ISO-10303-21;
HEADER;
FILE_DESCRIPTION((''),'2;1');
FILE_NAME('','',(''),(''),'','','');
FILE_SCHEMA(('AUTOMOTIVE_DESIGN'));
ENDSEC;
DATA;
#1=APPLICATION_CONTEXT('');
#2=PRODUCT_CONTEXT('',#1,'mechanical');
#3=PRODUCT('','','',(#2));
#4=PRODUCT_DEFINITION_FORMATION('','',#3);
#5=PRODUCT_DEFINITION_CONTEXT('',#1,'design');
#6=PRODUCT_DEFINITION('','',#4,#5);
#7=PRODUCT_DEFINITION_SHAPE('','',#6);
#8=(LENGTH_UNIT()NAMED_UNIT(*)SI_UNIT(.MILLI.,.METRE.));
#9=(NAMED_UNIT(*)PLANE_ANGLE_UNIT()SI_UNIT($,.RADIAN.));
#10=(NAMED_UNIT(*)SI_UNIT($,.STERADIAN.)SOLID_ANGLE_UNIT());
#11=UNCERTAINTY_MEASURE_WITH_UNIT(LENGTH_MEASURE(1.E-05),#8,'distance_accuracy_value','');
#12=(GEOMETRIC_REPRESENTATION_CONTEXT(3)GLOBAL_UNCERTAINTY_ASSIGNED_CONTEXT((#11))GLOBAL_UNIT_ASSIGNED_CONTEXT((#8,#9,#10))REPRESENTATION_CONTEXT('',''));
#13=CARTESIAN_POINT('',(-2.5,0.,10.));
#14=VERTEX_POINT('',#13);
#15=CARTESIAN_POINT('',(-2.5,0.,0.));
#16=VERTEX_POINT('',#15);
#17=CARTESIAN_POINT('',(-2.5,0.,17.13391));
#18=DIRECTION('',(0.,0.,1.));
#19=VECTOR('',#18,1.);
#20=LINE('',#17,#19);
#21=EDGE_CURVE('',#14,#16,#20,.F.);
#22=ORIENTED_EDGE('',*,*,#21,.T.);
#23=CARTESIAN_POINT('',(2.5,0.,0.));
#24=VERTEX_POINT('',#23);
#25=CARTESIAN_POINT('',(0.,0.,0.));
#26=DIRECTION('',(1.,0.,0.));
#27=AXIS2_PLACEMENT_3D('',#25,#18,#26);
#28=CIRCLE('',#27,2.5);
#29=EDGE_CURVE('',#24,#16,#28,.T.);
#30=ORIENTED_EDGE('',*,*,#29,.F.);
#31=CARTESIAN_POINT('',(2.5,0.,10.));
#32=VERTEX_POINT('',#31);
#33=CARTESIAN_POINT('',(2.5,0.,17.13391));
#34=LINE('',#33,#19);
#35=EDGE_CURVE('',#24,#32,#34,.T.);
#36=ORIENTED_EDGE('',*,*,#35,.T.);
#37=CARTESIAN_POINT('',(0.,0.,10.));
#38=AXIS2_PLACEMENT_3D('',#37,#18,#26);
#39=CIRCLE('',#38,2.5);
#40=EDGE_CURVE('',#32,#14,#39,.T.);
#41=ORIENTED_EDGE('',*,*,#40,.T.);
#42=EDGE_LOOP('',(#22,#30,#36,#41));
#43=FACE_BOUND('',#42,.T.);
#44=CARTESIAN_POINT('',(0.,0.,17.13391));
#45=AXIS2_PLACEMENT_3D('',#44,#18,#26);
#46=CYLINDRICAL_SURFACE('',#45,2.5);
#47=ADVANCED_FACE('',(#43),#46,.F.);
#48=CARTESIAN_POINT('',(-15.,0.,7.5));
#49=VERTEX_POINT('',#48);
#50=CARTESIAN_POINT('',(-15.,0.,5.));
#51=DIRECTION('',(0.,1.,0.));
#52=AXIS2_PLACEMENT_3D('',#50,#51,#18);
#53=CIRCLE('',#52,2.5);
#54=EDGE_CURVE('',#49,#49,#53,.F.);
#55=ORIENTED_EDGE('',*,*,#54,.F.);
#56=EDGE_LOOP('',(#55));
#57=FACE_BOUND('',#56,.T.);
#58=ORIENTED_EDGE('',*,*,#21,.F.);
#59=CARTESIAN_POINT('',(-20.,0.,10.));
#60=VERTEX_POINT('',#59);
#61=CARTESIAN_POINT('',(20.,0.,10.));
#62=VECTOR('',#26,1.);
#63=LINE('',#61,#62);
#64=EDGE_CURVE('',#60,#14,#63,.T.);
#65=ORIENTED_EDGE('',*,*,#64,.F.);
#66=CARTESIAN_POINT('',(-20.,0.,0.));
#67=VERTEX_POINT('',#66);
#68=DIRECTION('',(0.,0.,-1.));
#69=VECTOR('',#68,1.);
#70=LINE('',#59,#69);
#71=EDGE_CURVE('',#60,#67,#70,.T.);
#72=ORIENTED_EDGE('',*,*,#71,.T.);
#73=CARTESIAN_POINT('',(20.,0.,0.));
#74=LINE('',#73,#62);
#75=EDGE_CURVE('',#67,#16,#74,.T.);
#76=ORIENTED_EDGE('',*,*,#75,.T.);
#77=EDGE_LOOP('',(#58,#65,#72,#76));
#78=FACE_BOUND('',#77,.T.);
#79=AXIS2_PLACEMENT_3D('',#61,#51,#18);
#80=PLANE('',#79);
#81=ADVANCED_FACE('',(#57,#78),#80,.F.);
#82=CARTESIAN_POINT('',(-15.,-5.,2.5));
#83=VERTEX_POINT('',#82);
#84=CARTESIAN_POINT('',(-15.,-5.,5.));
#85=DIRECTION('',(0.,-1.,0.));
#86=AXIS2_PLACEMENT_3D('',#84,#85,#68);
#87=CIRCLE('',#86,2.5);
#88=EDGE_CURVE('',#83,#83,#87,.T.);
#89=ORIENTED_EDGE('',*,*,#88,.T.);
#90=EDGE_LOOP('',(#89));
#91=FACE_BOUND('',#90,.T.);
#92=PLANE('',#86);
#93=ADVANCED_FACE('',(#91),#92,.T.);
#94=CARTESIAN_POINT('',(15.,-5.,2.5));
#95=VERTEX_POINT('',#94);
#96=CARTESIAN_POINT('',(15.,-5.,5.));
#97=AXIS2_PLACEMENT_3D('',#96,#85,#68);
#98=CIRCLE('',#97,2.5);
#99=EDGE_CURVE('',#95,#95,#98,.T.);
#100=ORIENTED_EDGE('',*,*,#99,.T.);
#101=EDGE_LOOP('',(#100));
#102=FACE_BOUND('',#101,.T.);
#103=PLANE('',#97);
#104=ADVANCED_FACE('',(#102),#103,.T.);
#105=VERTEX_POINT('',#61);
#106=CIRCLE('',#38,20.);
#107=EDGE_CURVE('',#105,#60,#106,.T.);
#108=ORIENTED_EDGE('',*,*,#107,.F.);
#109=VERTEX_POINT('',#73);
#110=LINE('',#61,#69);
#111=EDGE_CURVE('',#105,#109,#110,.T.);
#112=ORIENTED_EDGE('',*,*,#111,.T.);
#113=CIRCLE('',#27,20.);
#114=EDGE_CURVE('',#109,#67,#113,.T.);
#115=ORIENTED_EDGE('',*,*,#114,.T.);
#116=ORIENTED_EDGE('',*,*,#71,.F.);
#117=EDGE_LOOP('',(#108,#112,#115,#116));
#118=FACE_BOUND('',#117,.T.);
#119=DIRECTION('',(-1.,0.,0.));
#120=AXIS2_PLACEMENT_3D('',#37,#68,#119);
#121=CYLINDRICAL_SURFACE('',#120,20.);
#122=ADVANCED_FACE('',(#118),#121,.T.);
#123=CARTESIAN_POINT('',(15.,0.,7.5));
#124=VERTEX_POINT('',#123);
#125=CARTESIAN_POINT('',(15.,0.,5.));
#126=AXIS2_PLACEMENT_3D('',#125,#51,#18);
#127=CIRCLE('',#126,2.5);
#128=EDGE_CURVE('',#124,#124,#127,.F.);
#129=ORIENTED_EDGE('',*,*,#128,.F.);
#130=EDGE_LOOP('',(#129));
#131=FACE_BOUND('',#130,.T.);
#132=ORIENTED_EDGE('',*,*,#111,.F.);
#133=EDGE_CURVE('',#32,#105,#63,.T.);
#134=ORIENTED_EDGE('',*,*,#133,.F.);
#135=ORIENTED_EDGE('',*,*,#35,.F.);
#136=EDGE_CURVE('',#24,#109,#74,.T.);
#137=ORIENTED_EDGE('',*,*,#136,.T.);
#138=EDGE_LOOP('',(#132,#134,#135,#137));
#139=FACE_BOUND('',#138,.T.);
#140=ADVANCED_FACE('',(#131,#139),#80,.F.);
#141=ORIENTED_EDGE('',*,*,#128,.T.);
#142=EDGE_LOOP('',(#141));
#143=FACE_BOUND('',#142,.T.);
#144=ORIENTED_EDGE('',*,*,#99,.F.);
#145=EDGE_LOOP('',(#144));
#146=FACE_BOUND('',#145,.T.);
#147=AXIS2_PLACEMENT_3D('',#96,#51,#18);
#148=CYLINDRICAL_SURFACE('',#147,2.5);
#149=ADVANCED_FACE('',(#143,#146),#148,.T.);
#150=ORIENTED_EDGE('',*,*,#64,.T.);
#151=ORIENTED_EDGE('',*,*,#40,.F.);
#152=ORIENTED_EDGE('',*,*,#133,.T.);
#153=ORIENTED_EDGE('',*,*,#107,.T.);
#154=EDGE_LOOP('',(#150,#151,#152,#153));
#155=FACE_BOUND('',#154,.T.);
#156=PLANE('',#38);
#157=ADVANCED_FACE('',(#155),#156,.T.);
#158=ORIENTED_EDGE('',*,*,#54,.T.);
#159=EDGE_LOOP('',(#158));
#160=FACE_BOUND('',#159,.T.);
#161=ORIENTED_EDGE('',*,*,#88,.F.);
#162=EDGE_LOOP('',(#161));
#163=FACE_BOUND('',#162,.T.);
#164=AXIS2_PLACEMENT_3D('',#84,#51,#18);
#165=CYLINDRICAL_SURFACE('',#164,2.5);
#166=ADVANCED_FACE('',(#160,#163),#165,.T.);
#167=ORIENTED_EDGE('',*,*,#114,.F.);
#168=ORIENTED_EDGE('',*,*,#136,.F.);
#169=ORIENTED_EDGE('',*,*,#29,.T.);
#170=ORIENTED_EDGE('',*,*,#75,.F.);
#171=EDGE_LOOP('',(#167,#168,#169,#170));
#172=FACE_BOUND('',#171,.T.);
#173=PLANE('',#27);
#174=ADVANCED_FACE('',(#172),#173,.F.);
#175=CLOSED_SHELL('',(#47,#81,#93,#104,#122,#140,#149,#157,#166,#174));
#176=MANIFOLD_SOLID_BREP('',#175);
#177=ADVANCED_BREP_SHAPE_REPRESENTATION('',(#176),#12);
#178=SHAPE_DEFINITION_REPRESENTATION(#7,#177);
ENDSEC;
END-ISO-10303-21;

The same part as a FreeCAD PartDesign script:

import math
import FreeCAD as App
import Part
import Sketcher


def add_polygon(sketch, points):
    """Adds a closed chain of lines whose ends are joined by coincident constraints."""
    first, n = sketch.GeometryCount, len(points)
    for a, b in zip(points, points[1:] + points[:1]):
        sketch.addGeometry(Part.LineSegment(App.Vector(*a, 0), App.Vector(*b, 0)), False)
    for i in range(n):
        sketch.addConstraint(Sketcher.Constraint("Coincident", first + i, 2, first + (i + 1) % n, 1))

doc = App.newDocument("Part")
params = doc.addObject("Spreadsheet::Sheet", "Params")
for row, (alias, value) in enumerate([
    ("sketch1_radius", "20 mm"),
    ("pad1_length", "10 mm"),
    ("sketch2_height", "10 mm"),
    ("sketch2_width", "2.5 mm"),
    ("groove_angle", "360 deg"),
    ("sketch3_diameter", "5 mm"),
    ("pad2_length", "5 mm"),
], start=1):
    params.set(f"A{row}", alias)
    params.set(f"B{row}", "=" + value)
    params.setAlias(f"B{row}", alias)

body = doc.addObject("PartDesign::Body", "Body")

sketch1 = body.newObject("Sketcher::SketchObject", "Sketch")
sketch1.AttachmentSupport = (doc.getObject("XY_Plane"), [""])
sketch1.MapMode = "FlatFace"
sketch1.addGeometry([
    Part.LineSegment(App.Vector(-20, 0, 0), App.Vector(20, 0, 0)),
    Part.ArcOfCircle(Part.Circle(App.Vector(0, 0, 0), App.Vector(0, 0, 1), 20), math.radians(0), math.radians(180)),
], False)
sketch1.addConstraint([
    Sketcher.Constraint("Coincident", 0, 1, 1, 2),
    Sketcher.Constraint("Coincident", 1, 1, 0, 2),
    Sketcher.Constraint("Horizontal", 0),
    Sketcher.Constraint("Coincident", 1, 3, -1, 1),
    Sketcher.Constraint("PointOnObject", 0, 1, -1),
    Sketcher.Constraint("Radius", 1, 20.0),
])
sketch1.setExpression("Constraints[5]", "Params.sketch1_radius")
pad1 = body.newObject("PartDesign::Pad", "Pad")
pad1.Profile = sketch1
pad1.setExpression("Length", "Params.pad1_length")

sketch2 = body.newObject("Sketcher::SketchObject", "Sketch001")
sketch2.AttachmentSupport = (doc.getObject("YZ_Plane"), [""])
sketch2.MapMode = "FlatFace"
add_polygon(sketch2, [(2.5, 10), (0, 10), (0, 0), (2.5, 0)])
sketch2.addConstraint([
    Sketcher.Constraint("Horizontal", 0),
    Sketcher.Constraint("Vertical", 1),
    Sketcher.Constraint("Horizontal", 2),
    Sketcher.Constraint("Vertical", 3),
    Sketcher.Constraint("Coincident", 1, 2, -1, 1),
    Sketcher.Constraint("DistanceY", 1, 2, 1, 1, 10.0),
    Sketcher.Constraint("DistanceX", 0, 2, 0, 1, 2.5),
])
sketch2.setExpression("Constraints[9]", "Params.sketch2_height")
sketch2.setExpression("Constraints[10]", "Params.sketch2_width")
groove = body.newObject("PartDesign::Groove", "Groove")
groove.Profile = sketch2
groove.ReferenceAxis = (sketch2, ["V_Axis"])
groove.setExpression("Angle", "Params.groove_angle")

sketch3 = body.newObject("Sketcher::SketchObject", "Sketch002")
sketch3.AttachmentSupport = (doc.getObject("XZ_Plane"), [""])
sketch3.MapMode = "FlatFace"
sketch3.addGeometry([
    Part.Circle(App.Vector(-15, 5, 0), App.Vector(0, 0, 1), 2.5),
    Part.Circle(App.Vector(15, 5, 0), App.Vector(0, 0, 1), 2.5),
], False)
sketch3.addConstraint([
    Sketcher.Constraint("Equal", 0, 1),
    Sketcher.Constraint("Symmetric", 0, 3, 1, 3, -2),
    Sketcher.Constraint("Diameter", 0, 5.0),
    Sketcher.Constraint("DistanceX", 0, 3, -1, 1, 15.0),
    Sketcher.Constraint("DistanceY", -1, 1, 0, 3, 5.0),
])
sketch3.setExpression("Constraints[2]", "Params.sketch3_diameter")
pad2 = body.newObject("PartDesign::Pad", "Pad001")
pad2.Profile = sketch3
pad2.setExpression("Length", "Params.pad2_length")

doc.recompute()
